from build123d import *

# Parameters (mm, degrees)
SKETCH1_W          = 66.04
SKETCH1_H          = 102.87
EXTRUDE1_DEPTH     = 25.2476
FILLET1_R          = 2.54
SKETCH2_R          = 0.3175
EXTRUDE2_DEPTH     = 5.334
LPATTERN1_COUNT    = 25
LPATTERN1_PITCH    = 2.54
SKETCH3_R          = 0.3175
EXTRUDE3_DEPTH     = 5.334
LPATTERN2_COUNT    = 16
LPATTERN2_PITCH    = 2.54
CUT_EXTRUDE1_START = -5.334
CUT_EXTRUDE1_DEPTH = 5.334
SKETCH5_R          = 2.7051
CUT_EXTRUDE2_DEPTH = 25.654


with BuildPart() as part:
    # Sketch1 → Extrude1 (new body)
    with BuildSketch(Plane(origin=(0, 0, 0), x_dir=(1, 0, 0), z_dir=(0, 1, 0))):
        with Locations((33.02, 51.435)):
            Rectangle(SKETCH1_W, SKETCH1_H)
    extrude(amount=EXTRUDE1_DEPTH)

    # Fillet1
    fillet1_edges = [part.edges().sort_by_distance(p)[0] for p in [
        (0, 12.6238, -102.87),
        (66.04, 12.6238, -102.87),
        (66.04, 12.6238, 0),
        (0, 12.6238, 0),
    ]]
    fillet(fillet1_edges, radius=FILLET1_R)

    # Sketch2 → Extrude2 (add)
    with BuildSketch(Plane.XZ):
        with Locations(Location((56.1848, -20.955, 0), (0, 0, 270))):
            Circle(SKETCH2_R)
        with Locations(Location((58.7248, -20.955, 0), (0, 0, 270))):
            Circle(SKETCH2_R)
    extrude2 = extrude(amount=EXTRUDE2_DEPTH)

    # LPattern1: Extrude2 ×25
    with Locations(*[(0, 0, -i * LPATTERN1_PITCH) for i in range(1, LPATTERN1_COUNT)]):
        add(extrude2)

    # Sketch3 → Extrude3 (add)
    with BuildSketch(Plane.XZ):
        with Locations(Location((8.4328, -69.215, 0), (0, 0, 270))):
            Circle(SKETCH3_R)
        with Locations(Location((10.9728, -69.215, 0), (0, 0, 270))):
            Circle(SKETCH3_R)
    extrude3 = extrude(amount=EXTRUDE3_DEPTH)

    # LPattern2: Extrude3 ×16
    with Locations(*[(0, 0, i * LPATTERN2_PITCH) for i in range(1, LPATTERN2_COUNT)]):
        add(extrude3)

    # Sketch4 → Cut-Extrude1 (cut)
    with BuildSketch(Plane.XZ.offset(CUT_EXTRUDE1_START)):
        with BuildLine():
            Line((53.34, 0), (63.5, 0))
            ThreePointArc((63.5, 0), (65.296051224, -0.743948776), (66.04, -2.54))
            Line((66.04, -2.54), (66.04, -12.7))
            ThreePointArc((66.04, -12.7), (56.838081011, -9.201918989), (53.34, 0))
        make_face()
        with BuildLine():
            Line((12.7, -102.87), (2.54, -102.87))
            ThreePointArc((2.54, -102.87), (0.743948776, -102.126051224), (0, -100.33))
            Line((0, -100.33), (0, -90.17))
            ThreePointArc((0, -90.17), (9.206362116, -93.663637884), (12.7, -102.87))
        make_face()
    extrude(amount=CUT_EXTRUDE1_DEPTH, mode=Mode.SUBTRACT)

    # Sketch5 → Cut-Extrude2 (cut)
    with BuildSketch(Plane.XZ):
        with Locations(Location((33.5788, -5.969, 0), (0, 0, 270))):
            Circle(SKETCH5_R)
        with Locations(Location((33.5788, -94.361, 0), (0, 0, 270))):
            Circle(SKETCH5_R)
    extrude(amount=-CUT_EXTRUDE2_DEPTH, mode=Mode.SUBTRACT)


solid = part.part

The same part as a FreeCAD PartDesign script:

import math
import FreeCAD as App
import Part
import Sketcher
Q = App.Units.Quantity


def edges_at(feature, points):
    """Names of the edges that pass closest to the given points."""
    edges = feature.Shape.Edges
    near = lambda p: min(range(len(edges)), key=lambda i: edges[i].distToShape(Part.Vertex(*p))[0])
    return sorted({f"Edge{near(p) + 1}" for p in points})

doc = App.newDocument("Part")
params = doc.addObject("Spreadsheet::Sheet", "Params")
for row, (alias, value) in enumerate([
    ("sketch1_width", "2.6 in"),
    ("sketch1_height", "4.05 in"),
    ("pad1_length", "0.994 in"),
    ("fillet_radius", "0.1 in"),
    ("sketch2_diameter", "0.025 in"),
    ("pad2_length", "0.21 in"),
    ("linearpattern_pitch", "0.1 in"),
    ("sketch3_diameter", "0.025 in"),
    ("pad3_length", "0.21 in"),
    ("linearpattern2_pitch", "0.1 in"),
    ("sketch4_radius", "0.1 in"),
    ("sketch4_width", "0.4 in"),
    ("sketch4_radius2", "0.473 in"),
    ("pocket1_length", "0.21 in"),
    ("sketch5_diameter", "0.213 in"),
    ("pocket2_length", "1.01 in"),
], start=1):
    params.set(f"A{row}", alias)
    params.set(f"B{row}", "=" + value)
    params.setAlias(f"B{row}", alias)

body = doc.addObject("PartDesign::Body", "Body")

sketch1 = body.newObject("Sketcher::SketchObject", "Sketch")
sketch1.AttachmentSupport = (doc.getObject("XZ_Plane"), [""])
sketch1.MapMode = "FlatFace"
sketch1.addGeometry([
    Part.LineSegment(App.Vector(0, -103, 0), App.Vector(0, 0, 0)),
    Part.LineSegment(App.Vector(0, 0, 0), App.Vector(66, 0, 0)),
    Part.LineSegment(App.Vector(66, 0, 0), App.Vector(66, -103, 0)),
    Part.LineSegment(App.Vector(66, -103, 0), App.Vector(0, -103, 0)),
], False)
sketch1.addConstraint([
    Sketcher.Constraint("Coincident", 0, 2, 1, 1),
    Sketcher.Constraint("Coincident", 1, 2, 2, 1),
    Sketcher.Constraint("Coincident", 2, 2, 3, 1),
    Sketcher.Constraint("Coincident", 3, 2, 0, 1),
    Sketcher.Constraint("Vertical", 0),
    Sketcher.Constraint("Horizontal", 1),
    Sketcher.Constraint("Vertical", 2),
    Sketcher.Constraint("Horizontal", 3),
    Sketcher.Constraint("Coincident", 0, 2, -1, 1),
    Sketcher.Constraint("DistanceX", 1, 1, 1, 2, Q("2.6 in")),
    Sketcher.Constraint("DistanceY", 0, 1, 0, 2, Q("4.05 in")),
])
sketch1.setExpression("Constraints[9]", "Params.sketch1_width")
sketch1.setExpression("Constraints[10]", "Params.sketch1_height")
pad1 = body.newObject("PartDesign::Pad", "Pad")
pad1.Profile = sketch1
pad1.setExpression("Length", "Params.pad1_length")
pad1.Reversed = True
doc.recompute()

fillet = body.newObject("PartDesign::Fillet", "Fillet")
fillet.Base = (pad1, edges_at(pad1, [
    (0, 12.624, -102.87),
    (66.04, 12.624, -102.87),
    (66.04, 12.624, 0),
    (0, 12.624, 0),
]))
fillet.setExpression("Radius", "Params.fillet_radius")

sketch2 = body.newObject("Sketcher::SketchObject", "Sketch001")
sketch2.AttachmentSupport = (doc.getObject("XZ_Plane"), [""])
sketch2.MapMode = "FlatFace"
sketch2.addGeometry([
    Part.Circle(App.Vector(56.18, -20.95, 0), App.Vector(0, 0, 1), 0.32),
    Part.Circle(App.Vector(58.72, -20.95, 0), App.Vector(0, 0, 1), 0.32),
], False)
sketch2.addConstraint([
    Sketcher.Constraint("Equal", 0, 1),
    Sketcher.Constraint("Horizontal", 0, 3, 1, 3),
    Sketcher.Constraint("Diameter", 0, Q("0.025 in")),
    Sketcher.Constraint("DistanceX", 0, 3, 1, 3, Q("0.1 in")),
    Sketcher.Constraint("DistanceX", -1, 1, 0, 3, Q("2.212 in")),
    Sketcher.Constraint("DistanceY", 0, 3, -1, 1, Q("0.825 in")),
])
sketch2.setExpression("Constraints[2]", "Params.sketch2_diameter")
pad2 = body.newObject("PartDesign::Pad", "Pad001")
pad2.Profile = sketch2
pad2.setExpression("Length", "Params.pad2_length")
doc.recompute()

linearpattern = body.newObject("PartDesign::LinearPattern", "LinearPattern")
linearpattern.Originals = [pad2]
linearpattern.Direction = (doc.getObject("Z_Axis"), [""])
linearpattern.Mode = "offset"
linearpattern.setExpression("Offset", "Params.linearpattern_pitch")
linearpattern.Occurrences = 25
linearpattern.Reversed = True
body.Tip = linearpattern

sketch3 = body.newObject("Sketcher::SketchObject", "Sketch002")
sketch3.AttachmentSupport = (doc.getObject("XZ_Plane"), [""])
sketch3.MapMode = "FlatFace"
sketch3.addGeometry([
    Part.Circle(App.Vector(8.43, -69.22, 0), App.Vector(0, 0, 1), 0.32),
    Part.Circle(App.Vector(10.97, -69.22, 0), App.Vector(0, 0, 1), 0.32),
], False)
sketch3.addConstraint([
    Sketcher.Constraint("Equal", 0, 1),
    Sketcher.Constraint("Horizontal", 0, 3, 1, 3),
    Sketcher.Constraint("Diameter", 0, Q("0.025 in")),
    Sketcher.Constraint("DistanceX", 0, 3, 1, 3, Q("0.1 in")),
    Sketcher.Constraint("DistanceX", -1, 1, 0, 3, Q("0.332 in")),
    Sketcher.Constraint("DistanceY", 0, 3, -1, 1, Q("2.725 in")),
])
sketch3.setExpression("Constraints[2]", "Params.sketch3_diameter")
pad3 = body.newObject("PartDesign::Pad", "Pad002")
pad3.Profile = sketch3
pad3.setExpression("Length", "Params.pad3_length")
doc.recompute()

linearpattern2 = body.newObject("PartDesign::LinearPattern", "LinearPattern001")
linearpattern2.Originals = [pad3]
linearpattern2.Direction = (doc.getObject("Z_Axis"), [""])
linearpattern2.Mode = "offset"
linearpattern2.setExpression("Offset", "Params.linearpattern2_pitch")
linearpattern2.Occurrences = 16
body.Tip = linearpattern2

sketch4 = body.newObject("Sketcher::SketchObject", "Sketch003")
sketch4.AttachmentSupport = (doc.getObject("XZ_Plane"), [""])
sketch4.MapMode = "FlatFace"
sketch4.AttachmentOffset = App.Placement(App.Vector(0, 0, -0.21 * 25.4), App.Rotation())
sketch4.addGeometry([
    Part.LineSegment(App.Vector(63.5, 0, 0), App.Vector(53.3, 0, 0)),
    Part.ArcOfCircle(Part.Circle(App.Vector(65.3, -0.7, 0), App.Vector(0, 0, 1), 12), math.radians(177), math.radians(273)),
    Part.LineSegment(App.Vector(66, -12.7, 0), App.Vector(66, -2.5, 0)),
    Part.ArcOfCircle(Part.Circle(App.Vector(63.5, -2.5, 0), App.Vector(0, 0, 1), 2.5), math.radians(0), math.radians(90)),
    Part.LineSegment(App.Vector(2.5, -102.9, 0), App.Vector(12.7, -102.9, 0)),
    Part.ArcOfCircle(Part.Circle(App.Vector(0.7, -102.2, 0), App.Vector(0, 0, 1), 12), math.radians(-3), math.radians(93)),
    Part.LineSegment(App.Vector(0, -90.2, 0), App.Vector(0, -100.3, 0)),
    Part.ArcOfCircle(Part.Circle(App.Vector(2.5, -100.3, 0), App.Vector(0, 0, 1), 2.5), math.radians(-180), math.radians(-90)),
], False)
sketch4.addConstraint([
    Sketcher.Constraint("Coincident", 0, 2, 1, 1),
    Sketcher.Constraint("Coincident", 1, 2, 2, 1),
    Sketcher.Constraint("Tangent", 2, 2, 3, 1),
    Sketcher.Constraint("Tangent", 3, 2, 0, 1),
    Sketcher.Constraint("Coincident", 4, 2, 5, 1),
    Sketcher.Constraint("Coincident", 5, 2, 6, 1),
    Sketcher.Constraint("Tangent", 6, 2, 7, 1),
    Sketcher.Constraint("Tangent", 7, 2, 4, 1),
    Sketcher.Constraint("Horizontal", 0),
    Sketcher.Constraint("Vertical", 2),
    Sketcher.Constraint("Horizontal", 4),
    Sketcher.Constraint("Vertical", 6),
    Sketcher.Constraint("Equal", 3, 7),
    Sketcher.Constraint("PointOnObject", 0, 2, -1),
    Sketcher.Constraint("PointOnObject", 5, 2, -2),
    Sketcher.Constraint("Equal", 0, 4),
    Sketcher.Constraint("Equal", 4, 2),
    Sketcher.Constraint("Equal", 2, 6),
    Sketcher.Constraint("Radius", 3, Q("0.1 in")),
    Sketcher.Constraint("DistanceX", 0, 2, 0, 1, Q("0.4 in")),
    Sketcher.Constraint("Radius", 1, Q("0.473 in")),
    Sketcher.Constraint("DistanceX", 7, 3, 0, 2, Q("2 in")),
    Sketcher.Constraint("DistanceY", 7, 3, -1, 1, Q("3.95 in")),
    Sketcher.Constraint("Radius", 5, Q("12.00179 mm")),
])
sketch4.setExpression("Constraints[18]", "Params.sketch4_radius")
sketch4.setExpression("Constraints[19]", "Params.sketch4_width")
sketch4.setExpression("Constraints[20]", "Params.sketch4_radius2")
pocket1 = body.newObject("PartDesign::Pocket", "Pocket")
pocket1.Profile = sketch4
pocket1.setExpression("Length", "Params.pocket1_length")
pocket1.Reversed = True

sketch5 = body.newObject("Sketcher::SketchObject", "Sketch004")
sketch5.AttachmentSupport = (doc.getObject("XZ_Plane"), [""])
sketch5.MapMode = "FlatFace"
sketch5.addGeometry([
    Part.Circle(App.Vector(33.6, -6, 0), App.Vector(0, 0, 1), 2.7),
    Part.Circle(App.Vector(33.6, -94.4, 0), App.Vector(0, 0, 1), 2.7),
], False)
sketch5.addConstraint([
    Sketcher.Constraint("Equal", 0, 1),
    Sketcher.Constraint("Vertical", 0, 3, 1, 3),
    Sketcher.Constraint("Diameter", 0, Q("0.213 in")),
    Sketcher.Constraint("DistanceY", 1, 3, 0, 3, Q("3.48 in")),
    Sketcher.Constraint("DistanceX", -1, 1, 0, 3, Q("1.322 in")),
    Sketcher.Constraint("DistanceY", 0, 3, -1, 1, Q("0.235 in")),
])
sketch5.setExpression("Constraints[2]", "Params.sketch5_diameter")
pocket2 = body.newObject("PartDesign::Pocket", "Pocket001")
pocket2.Profile = sketch5
pocket2.setExpression("Length", "Params.pocket2_length")

doc.recompute()
